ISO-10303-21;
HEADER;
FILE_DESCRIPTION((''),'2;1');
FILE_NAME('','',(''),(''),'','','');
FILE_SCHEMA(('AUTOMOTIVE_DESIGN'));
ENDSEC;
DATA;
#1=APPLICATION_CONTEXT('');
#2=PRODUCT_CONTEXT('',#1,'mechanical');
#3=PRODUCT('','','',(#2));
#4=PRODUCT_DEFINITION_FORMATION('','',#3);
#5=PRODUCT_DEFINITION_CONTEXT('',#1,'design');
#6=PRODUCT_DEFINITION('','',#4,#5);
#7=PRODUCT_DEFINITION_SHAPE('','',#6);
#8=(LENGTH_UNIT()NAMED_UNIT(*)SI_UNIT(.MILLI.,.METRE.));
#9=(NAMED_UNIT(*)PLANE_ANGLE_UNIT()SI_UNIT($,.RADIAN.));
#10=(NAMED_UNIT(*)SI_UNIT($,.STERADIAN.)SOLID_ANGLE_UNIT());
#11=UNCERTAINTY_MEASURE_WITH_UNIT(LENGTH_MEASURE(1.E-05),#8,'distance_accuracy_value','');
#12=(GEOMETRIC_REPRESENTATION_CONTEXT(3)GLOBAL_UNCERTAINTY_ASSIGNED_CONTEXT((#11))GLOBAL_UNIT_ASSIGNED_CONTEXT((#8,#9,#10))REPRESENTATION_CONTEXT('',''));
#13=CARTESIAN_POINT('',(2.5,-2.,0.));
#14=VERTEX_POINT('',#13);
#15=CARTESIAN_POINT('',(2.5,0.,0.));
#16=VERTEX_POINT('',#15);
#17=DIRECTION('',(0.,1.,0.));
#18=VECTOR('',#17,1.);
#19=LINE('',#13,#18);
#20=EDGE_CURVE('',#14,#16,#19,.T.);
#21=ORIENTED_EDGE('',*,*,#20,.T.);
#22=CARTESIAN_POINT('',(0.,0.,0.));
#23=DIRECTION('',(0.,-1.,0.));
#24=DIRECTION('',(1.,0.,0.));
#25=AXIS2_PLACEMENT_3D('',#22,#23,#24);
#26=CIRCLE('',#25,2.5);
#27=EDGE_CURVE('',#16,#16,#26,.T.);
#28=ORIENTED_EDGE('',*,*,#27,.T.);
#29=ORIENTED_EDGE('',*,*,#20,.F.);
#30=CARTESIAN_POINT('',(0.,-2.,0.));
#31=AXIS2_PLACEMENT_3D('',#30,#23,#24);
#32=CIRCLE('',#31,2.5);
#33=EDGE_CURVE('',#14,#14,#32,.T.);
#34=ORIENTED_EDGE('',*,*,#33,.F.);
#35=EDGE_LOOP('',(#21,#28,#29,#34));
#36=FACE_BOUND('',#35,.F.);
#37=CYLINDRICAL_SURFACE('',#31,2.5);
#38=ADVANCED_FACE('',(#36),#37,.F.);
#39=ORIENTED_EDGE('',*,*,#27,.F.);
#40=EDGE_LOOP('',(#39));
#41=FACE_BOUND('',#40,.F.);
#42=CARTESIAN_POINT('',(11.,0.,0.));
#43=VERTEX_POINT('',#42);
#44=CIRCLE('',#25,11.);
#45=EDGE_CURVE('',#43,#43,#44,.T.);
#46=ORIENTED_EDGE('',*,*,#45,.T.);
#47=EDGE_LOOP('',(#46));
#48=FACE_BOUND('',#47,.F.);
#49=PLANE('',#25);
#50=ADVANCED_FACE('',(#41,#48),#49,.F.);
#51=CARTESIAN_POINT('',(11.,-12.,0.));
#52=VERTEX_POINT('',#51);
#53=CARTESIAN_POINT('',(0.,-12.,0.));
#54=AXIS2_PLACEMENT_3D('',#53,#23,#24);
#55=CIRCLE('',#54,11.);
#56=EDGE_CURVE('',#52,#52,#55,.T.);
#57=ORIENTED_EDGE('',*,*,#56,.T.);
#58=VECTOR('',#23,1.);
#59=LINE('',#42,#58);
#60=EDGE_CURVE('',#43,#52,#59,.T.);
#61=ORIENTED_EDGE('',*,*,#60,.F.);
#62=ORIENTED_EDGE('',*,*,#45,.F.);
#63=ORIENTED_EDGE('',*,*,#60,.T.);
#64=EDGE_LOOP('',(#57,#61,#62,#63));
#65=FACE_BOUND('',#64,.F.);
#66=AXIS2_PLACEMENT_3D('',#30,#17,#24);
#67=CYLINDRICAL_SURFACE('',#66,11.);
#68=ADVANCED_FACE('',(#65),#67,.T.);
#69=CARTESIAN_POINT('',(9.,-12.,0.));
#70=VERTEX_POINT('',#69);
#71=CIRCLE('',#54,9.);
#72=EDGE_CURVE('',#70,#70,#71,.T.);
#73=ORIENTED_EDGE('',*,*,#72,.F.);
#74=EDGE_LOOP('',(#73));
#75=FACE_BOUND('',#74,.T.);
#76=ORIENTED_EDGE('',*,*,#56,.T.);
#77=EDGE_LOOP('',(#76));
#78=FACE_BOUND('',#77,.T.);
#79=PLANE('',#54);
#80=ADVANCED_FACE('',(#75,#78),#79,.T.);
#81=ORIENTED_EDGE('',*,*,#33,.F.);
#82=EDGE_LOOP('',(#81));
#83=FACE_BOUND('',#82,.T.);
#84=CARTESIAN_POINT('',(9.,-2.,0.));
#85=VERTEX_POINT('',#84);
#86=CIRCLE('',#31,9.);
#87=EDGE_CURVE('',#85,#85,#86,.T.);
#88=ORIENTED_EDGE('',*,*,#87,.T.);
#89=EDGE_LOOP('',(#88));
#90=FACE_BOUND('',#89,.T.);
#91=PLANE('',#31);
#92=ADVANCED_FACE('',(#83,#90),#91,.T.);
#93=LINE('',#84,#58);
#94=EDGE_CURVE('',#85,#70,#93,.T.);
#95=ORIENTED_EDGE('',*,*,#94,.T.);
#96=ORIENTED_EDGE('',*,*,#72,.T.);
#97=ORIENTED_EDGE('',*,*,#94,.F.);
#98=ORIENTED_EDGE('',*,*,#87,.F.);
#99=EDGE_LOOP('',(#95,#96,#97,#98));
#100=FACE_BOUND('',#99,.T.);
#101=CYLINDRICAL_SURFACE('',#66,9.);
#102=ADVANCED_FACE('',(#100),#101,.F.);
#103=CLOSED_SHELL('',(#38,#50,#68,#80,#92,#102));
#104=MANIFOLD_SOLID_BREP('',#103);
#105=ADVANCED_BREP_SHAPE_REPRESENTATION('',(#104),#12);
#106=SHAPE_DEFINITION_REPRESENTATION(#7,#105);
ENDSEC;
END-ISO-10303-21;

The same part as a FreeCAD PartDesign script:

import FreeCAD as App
import Part
import Sketcher
Q = App.Units.Quantity

doc = App.newDocument("Part")
params = doc.addObject("Spreadsheet::Sheet", "Params")
for row, (alias, value) in enumerate([
    ("sketch1_diameter", "22 mm"),
    ("pad1_length", "2 mm"),
    ("sketch2_diameter", "5 mm"),
    ("pocket1_length", "25 mm"),
    ("sketch3_diameter", "22 mm"),
    ("sketch3_diameter2", "18 mm"),
    ("pad2_length", "10 mm"),
], start=1):
    params.set(f"A{row}", alias)
    params.set(f"B{row}", "=" + value)
    params.setAlias(f"B{row}", alias)

body = doc.addObject("PartDesign::Body", "Body")

sketch1 = doc.addObject("Sketcher::SketchObject", "Sketch")
body.addObject(sketch1)
sketch1.AttachmentSupport = (doc.XZ_Plane, [""])
sketch1.MapMode = "FlatFace"
sketch1.addGeometry(Part.Circle(App.Vector(0, 0, 0), App.Vector(0, 0, 1), 11), False)
sketch1.addConstraint([
    Sketcher.Constraint("Coincident", 0, 3, -1, 1),
    Sketcher.Constraint("Diameter", 0, Q("22 mm")),
])
sketch1.setExpression("Constraints[1]", "Params.sketch1_diameter")
pad1 = doc.addObject("PartDesign::Pad", "Pad")
body.addObject(pad1)
pad1.Profile = sketch1
pad1.setExpression("Length", "Params.pad1_length")

sketch2 = doc.addObject("Sketcher::SketchObject", "Sketch001")
body.addObject(sketch2)
sketch2.AttachmentSupport = (doc.XZ_Plane, [""])
sketch2.MapMode = "FlatFace"
sketch2.AttachmentOffset = App.Placement(App.Vector(0, 0, 2), App.Rotation())
sketch2.addGeometry(Part.Circle(App.Vector(0, 0, 0), App.Vector(0, 0, 1), 2.5), False)
sketch2.addConstraint([
    Sketcher.Constraint("Coincident", 0, 3, -1, 1),
    Sketcher.Constraint("Diameter", 0, Q("5 mm")),
])
sketch2.setExpression("Constraints[1]", "Params.sketch2_diameter")
pocket1 = doc.addObject("PartDesign::Pocket", "Pocket")
body.addObject(pocket1)
pocket1.Profile = sketch2
pocket1.setExpression("Length", "Params.pocket1_length")

sketch3 = doc.addObject("Sketcher::SketchObject", "Sketch002")
body.addObject(sketch3)
sketch3.AttachmentSupport = (doc.XZ_Plane, [""])
sketch3.MapMode = "FlatFace"
sketch3.AttachmentOffset = App.Placement(App.Vector(0, 0, 2), App.Rotation())
sketch3.addGeometry([
    Part.Circle(App.Vector(0, 0, 0), App.Vector(0, 0, 1), 11),
    Part.Circle(App.Vector(0, 0, 0), App.Vector(0, 0, 1), 9),
], False)
sketch3.addConstraint([
    Sketcher.Constraint("Coincident", 0, 3, -1, 1),
    Sketcher.Constraint("Coincident", 1, 3, -1, 1),
    Sketcher.Constraint("Diameter", 0, Q("22 mm")),
    Sketcher.Constraint("Diameter", 1, Q("18 mm")),
])
sketch3.setExpression("Constraints[2]", "Params.sketch3_diameter")
sketch3.setExpression("Constraints[3]", "Params.sketch3_diameter2")
pad2 = doc.addObject("PartDesign::Pad", "Pad001")
body.addObject(pad2)
pad2.Profile = sketch3
pad2.setExpression("Length", "Params.pad2_length")

doc.recompute()
